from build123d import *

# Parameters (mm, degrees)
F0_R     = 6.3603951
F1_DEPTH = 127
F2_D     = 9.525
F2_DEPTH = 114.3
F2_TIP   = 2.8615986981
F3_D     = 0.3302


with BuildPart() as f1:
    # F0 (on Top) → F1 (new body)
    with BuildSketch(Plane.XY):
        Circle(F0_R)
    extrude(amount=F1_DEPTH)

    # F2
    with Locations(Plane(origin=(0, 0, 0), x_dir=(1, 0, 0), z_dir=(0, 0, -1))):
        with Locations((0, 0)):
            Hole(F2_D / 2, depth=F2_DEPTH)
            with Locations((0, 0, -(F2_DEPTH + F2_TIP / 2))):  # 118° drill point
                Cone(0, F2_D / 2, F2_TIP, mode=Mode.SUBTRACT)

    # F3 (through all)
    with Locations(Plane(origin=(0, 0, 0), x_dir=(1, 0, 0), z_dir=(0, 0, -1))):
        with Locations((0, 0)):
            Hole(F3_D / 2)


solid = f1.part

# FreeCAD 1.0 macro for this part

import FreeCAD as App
import Part
import Sketcher
Q = App.Units.Quantity

doc = App.newDocument("Part")
body = doc.addObject("PartDesign::Body", "Body")

# Sketch on XY plane
sketch1 = doc.addObject("Sketcher::SketchObject", "Sketch")
body.addObject(sketch1)
sketch1.AttachmentSupport = (doc.XY_Plane, [""])
sketch1.MapMode = "FlatFace"
sketch1.addGeometry(Part.Circle(App.Vector(0, 0, 0), App.Vector(0, 0, 1), 6), False)
sketch1.addConstraint(Sketcher.Constraint("Coincident", 0, 3, -1, 1))
sketch1.addConstraint(Sketcher.Constraint("Diameter", 0, 12.72079))
pad1 = doc.addObject("PartDesign::Pad", "Pad")
body.addObject(pad1)
pad1.Profile = sketch1
pad1.Length = Q("5 in")

# Sketch on XY plane
sketch2 = doc.addObject("Sketcher::SketchObject", "Sketch001")
body.addObject(sketch2)
sketch2.AttachmentSupport = (doc.XY_Plane, [""])
sketch2.MapMode = "FlatFace"
sketch2.addGeometry(Part.Circle(App.Vector(0, 0, 0), App.Vector(0, 0, 1), 4.8), False)
sketch2.addConstraint(Sketcher.Constraint("Coincident", 0, 3, -1, 1))
sketch2.addConstraint(Sketcher.Constraint("Diameter", 0, Q("0.375 in")))
doc.recompute()
hole = doc.addObject("PartDesign::Hole", "Hole")
body.addObject(hole)
hole.Profile = sketch2
hole.ThreadType = "None"
hole.Diameter = Q("0.375 in")
hole.DepthType = "Dimension"
hole.Depth = Q("4.5 in")
hole.DrillPoint = "Angled"
hole.DrillPointAngle = 118
hole.Reversed = True

# Sketch on XY plane
sketch3 = doc.addObject("Sketcher::SketchObject", "Sketch002")
body.addObject(sketch3)
sketch3.AttachmentSupport = (doc.XY_Plane, [""])
sketch3.MapMode = "FlatFace"
sketch3.addGeometry(Part.Circle(App.Vector(0, 0, 0), App.Vector(0, 0, 1), 0.17), False)
sketch3.addConstraint(Sketcher.Constraint("Coincident", 0, 3, -1, 1))
sketch3.addConstraint(Sketcher.Constraint("Diameter", 0, Q("0.013 in")))
doc.recompute()
hole2 = doc.addObject("PartDesign::Hole", "Hole001")
body.addObject(hole2)
hole2.Profile = sketch3
hole2.ThreadType = "None"
hole2.Diameter = Q("0.013 in")
hole2.DepthType = "ThroughAll"
hole2.Reversed = True

doc.recompute()
